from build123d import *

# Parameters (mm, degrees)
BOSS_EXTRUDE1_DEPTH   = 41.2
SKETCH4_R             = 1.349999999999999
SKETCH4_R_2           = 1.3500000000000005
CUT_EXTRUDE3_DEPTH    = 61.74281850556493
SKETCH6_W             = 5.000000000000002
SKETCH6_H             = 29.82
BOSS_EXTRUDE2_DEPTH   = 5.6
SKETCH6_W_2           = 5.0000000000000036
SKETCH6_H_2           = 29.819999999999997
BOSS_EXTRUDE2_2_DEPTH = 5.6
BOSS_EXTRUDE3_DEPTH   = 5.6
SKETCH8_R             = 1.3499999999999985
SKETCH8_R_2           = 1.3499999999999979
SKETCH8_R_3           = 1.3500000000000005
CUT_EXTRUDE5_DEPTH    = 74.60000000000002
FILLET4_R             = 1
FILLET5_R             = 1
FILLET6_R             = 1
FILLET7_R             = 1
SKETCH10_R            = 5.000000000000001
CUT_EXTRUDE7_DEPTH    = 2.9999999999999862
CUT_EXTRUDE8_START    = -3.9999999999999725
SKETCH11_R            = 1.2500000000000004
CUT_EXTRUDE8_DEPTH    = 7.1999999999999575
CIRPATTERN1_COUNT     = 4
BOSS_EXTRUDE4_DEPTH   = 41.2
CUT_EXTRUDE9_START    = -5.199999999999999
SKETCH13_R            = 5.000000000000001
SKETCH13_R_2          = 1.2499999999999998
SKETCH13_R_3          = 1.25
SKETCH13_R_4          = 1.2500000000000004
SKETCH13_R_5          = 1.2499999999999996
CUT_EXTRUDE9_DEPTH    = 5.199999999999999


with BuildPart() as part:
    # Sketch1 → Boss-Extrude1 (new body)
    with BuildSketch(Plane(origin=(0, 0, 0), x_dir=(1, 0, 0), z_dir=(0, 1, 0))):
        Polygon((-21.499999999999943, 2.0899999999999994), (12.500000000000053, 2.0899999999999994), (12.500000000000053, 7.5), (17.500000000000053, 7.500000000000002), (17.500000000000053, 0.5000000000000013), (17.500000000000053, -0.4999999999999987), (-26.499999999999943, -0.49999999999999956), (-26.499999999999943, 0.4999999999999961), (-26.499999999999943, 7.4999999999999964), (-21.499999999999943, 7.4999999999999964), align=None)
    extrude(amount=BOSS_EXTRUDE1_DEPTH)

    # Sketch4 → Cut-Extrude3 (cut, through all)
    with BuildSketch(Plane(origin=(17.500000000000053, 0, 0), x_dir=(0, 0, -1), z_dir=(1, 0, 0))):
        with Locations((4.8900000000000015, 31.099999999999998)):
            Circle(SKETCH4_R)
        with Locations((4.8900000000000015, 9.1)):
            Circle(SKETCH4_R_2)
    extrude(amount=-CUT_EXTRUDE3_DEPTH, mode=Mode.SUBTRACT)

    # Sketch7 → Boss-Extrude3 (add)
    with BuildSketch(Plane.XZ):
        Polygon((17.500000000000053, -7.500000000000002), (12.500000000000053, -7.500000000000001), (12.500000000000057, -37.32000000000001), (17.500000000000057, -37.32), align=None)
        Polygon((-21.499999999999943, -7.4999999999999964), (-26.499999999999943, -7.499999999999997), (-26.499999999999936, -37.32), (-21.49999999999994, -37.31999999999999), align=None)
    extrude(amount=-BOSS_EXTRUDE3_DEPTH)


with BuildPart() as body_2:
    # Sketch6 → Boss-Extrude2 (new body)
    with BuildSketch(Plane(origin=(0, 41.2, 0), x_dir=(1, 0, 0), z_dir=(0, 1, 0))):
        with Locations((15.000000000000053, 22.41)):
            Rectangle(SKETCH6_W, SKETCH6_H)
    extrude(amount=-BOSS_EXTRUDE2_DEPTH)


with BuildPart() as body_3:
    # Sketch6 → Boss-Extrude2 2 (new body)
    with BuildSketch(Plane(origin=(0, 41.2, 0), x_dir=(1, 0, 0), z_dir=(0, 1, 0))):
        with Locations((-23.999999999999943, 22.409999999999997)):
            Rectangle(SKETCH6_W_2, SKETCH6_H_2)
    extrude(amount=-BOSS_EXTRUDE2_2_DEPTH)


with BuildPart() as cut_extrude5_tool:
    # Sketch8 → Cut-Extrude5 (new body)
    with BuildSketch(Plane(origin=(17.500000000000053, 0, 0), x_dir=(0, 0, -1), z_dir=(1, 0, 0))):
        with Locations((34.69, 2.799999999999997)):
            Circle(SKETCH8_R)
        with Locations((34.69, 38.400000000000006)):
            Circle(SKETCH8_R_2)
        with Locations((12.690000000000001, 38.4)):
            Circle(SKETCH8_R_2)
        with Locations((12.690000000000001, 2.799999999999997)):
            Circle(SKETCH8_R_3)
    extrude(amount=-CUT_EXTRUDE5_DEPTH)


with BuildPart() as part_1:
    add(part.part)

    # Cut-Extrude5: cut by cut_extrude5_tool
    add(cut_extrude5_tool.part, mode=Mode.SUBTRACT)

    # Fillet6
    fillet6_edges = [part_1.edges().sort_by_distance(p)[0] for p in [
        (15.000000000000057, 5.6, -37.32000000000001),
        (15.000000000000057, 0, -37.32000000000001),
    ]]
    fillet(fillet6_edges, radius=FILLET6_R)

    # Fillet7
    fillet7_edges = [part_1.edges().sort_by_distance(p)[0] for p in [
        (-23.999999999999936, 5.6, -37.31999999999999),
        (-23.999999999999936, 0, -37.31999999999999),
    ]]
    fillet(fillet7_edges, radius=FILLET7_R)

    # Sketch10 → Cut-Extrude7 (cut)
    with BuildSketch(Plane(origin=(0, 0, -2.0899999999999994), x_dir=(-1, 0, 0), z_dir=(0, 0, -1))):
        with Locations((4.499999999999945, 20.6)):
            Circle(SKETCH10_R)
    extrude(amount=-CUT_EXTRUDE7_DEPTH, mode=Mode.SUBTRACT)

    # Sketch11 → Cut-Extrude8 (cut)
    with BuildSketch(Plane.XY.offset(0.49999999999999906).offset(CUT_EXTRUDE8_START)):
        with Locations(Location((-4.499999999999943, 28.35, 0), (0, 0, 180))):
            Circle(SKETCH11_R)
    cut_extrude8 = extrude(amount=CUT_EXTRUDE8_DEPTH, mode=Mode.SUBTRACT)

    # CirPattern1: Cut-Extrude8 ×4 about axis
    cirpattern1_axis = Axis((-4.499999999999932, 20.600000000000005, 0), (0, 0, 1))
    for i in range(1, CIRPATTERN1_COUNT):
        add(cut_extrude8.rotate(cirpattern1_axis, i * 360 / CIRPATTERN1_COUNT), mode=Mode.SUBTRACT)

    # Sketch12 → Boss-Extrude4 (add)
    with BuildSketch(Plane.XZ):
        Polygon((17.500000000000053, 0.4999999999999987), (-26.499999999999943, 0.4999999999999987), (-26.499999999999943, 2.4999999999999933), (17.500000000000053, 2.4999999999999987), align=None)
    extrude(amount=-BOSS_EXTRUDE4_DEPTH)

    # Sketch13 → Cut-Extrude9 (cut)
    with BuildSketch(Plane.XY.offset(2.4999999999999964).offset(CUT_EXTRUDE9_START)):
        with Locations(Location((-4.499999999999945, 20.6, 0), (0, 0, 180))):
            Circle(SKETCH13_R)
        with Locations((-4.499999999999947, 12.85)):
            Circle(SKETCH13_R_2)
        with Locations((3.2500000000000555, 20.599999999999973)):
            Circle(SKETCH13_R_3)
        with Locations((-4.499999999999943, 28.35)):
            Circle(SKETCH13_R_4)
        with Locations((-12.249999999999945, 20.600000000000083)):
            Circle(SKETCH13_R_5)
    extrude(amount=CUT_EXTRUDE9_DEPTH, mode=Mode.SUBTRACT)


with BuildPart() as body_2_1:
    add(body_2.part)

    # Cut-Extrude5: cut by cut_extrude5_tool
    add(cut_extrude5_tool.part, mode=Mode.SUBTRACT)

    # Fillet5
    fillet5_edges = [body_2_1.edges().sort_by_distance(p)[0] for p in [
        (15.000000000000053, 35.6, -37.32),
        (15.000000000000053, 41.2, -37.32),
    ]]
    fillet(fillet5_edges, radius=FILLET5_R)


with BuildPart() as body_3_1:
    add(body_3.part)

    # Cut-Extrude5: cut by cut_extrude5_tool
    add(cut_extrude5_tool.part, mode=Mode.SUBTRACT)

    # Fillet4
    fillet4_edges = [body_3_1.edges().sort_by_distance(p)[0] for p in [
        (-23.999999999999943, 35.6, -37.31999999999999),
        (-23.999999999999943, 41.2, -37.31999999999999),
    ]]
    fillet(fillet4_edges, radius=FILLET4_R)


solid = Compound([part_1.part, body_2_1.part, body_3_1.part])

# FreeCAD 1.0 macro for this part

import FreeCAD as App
import Part
import Sketcher
from FreeCAD import Vector


def edges_at(feature, points):
    """Names of the edges that pass closest to the given points."""
    edges = feature.Shape.Edges
    near = lambda p: min(range(len(edges)), key=lambda i: edges[i].distToShape(Part.Vertex(*p))[0])
    return sorted({f"Edge{near(p) + 1}" for p in points})

doc = App.newDocument("Part")
params = doc.addObject("Spreadsheet::Sheet", "Params")
for row, (alias, value) in enumerate([
    ("sketch1_width", "34 mm"),
    ("sketch1_width2", "5 mm"),
    ("sketch1_height", "8 mm"),
    ("sketch1_height2", "5.41 mm"),
    ("pad1_length", "41.2 mm"),
    ("sketch2_diameter", "2.7 mm"),
    ("sketch3_width", "5 mm"),
    ("sketch3_height", "29.82 mm"),
    ("pad2_length", "5.6 mm"),
    ("sketch4_width", "5 mm"),
    ("sketch4_height", "29.82 mm"),
    ("pad3_length", "5.6 mm"),
    ("sketch5_width", "5 mm"),
    ("sketch5_height", "29.82 mm"),
    ("pad4_length", "5.6 mm"),
    ("sketch6_diameter", "2.7 mm"),
    ("pad5_length", "74.6 mm"),
    ("fillet_radius", "1 mm"),
    ("fillet2_radius", "1 mm"),
    ("sketch7_diameter", "10 mm"),
    ("pocket2_length", "3 mm"),
    ("sketch8_diameter", "2.5 mm"),
    ("pocket3_length", "7.2 mm"),
    ("sketch9_width", "44 mm"),
    ("sketch9_height", "2 mm"),
    ("pad6_length", "41.2 mm"),
    ("sketch10_diameter", "10 mm"),
    ("sketch10_diameter2", "2.5 mm"),
    ("pocket4_length", "5.2 mm"),
    ("fillet3_radius", "1 mm"),
    ("fillet4_radius", "1 mm"),
], start=1):
    params.set(f"A{row}", alias)
    params.set(f"B{row}", "=" + value)
    params.setAlias(f"B{row}", alias)

body = doc.addObject("PartDesign::Body", "Body")

# Sketch on XZ plane
sketch1 = body.newObject("Sketcher::SketchObject", "Sketch")
sketch1.AttachmentSupport = (doc.getObject("XZ_Plane"), [""])
sketch1.MapMode = "FlatFace"
sketch1.addGeometry([
    Part.LineSegment(Vector(12, -2, 0), Vector(-22, -2, 0)),  # 0
    Part.LineSegment(Vector(-22, -2, 0), Vector(-22, -8, 0)),  # 1
    Part.LineSegment(Vector(-22, -8, 0), Vector(-26, -8, 0)),  # 2
    Part.LineSegment(Vector(-26, -8, 0), Vector(-26, 0, 0)),  # 3
    Part.LineSegment(Vector(-26, 0, 0), Vector(18, 0, 0)),  # 4
    Part.LineSegment(Vector(18, 0, 0), Vector(18, -8, 0)),  # 5
    Part.LineSegment(Vector(18, -8, 0), Vector(12, -8, 0)),  # 6
    Part.LineSegment(Vector(12, -8, 0), Vector(12, -2, 0)),  # 7
], False)
sketch1.addConstraint([
    Sketcher.Constraint("Coincident", 0, 2, 1, 1),
    Sketcher.Constraint("Coincident", 1, 2, 2, 1),
    Sketcher.Constraint("Coincident", 2, 2, 3, 1),
    Sketcher.Constraint("Coincident", 3, 2, 4, 1),
    Sketcher.Constraint("Coincident", 4, 2, 5, 1),
    Sketcher.Constraint("Coincident", 5, 2, 6, 1),
    Sketcher.Constraint("Coincident", 6, 2, 7, 1),
    Sketcher.Constraint("Coincident", 7, 2, 0, 1),
    Sketcher.Constraint("Horizontal", 0),
    Sketcher.Constraint("Vertical", 1),
    Sketcher.Constraint("Horizontal", 2),
    Sketcher.Constraint("Vertical", 3),
    Sketcher.Constraint("Horizontal", 4),
    Sketcher.Constraint("Vertical", 5),
    Sketcher.Constraint("Horizontal", 6),
    Sketcher.Constraint("Vertical", 7),
    Sketcher.Constraint("Horizontal", 2, 2, 5, 2),
    Sketcher.Constraint("Equal", 2, 6),
    Sketcher.Constraint("DistanceX", 0, 2, 0, 1, 34.0),
    Sketcher.Constraint("DistanceX", 2, 2, 2, 1, 5.0),
    Sketcher.Constraint("DistanceY", 3, 1, 3, 2, 8.0),
    Sketcher.Constraint("DistanceY", 1, 2, 1, 1, 5.41),
    Sketcher.Constraint("DistanceX", 0, 2, -1, 1, 21.5),
    Sketcher.Constraint("DistanceY", 1, 2, -1, 1, 7.5),
])
sketch1.setExpression("Constraints[18]", "Params.sketch1_width")
sketch1.setExpression("Constraints[19]", "Params.sketch1_width2")
sketch1.setExpression("Constraints[20]", "Params.sketch1_height")
sketch1.setExpression("Constraints[21]", "Params.sketch1_height2")
pad1 = body.newObject("PartDesign::Pad", "Pad")
pad1.Profile = sketch1
pad1.setExpression("Length", "Params.pad1_length")
pad1.Reversed = True

# Sketch on YZ plane
sketch2 = body.newObject("Sketcher::SketchObject", "Sketch001")
sketch2.AttachmentSupport = (doc.getObject("YZ_Plane"), [""])
sketch2.MapMode = "FlatFace"
sketch2.AttachmentOffset = App.Placement(Vector(0, 0, 17.5), App.Rotation())
sketch2.addGeometry([
    Part.Circle(Vector(31.1, -4.9, 0), Vector(0, 0, 1), 1.4),
    Part.Circle(Vector(9.1, -4.9, 0), Vector(0, 0, 1), 1.4),
], False)
sketch2.addConstraint([
    Sketcher.Constraint("Equal", 0, 1),
    Sketcher.Constraint("Horizontal", 0, 3, 1, 3),
    Sketcher.Constraint("Diameter", 0, 2.7),
    Sketcher.Constraint("DistanceX", 1, 3, 0, 3, 22.0),
    Sketcher.Constraint("DistanceX", -1, 1, 0, 3, 31.1),
    Sketcher.Constraint("DistanceY", 0, 3, -1, 1, 4.89),
])
sketch2.setExpression("Constraints[2]", "Params.sketch2_diameter")
pocket1 = body.newObject("PartDesign::Pocket", "Pocket")
pocket1.Profile = sketch2
pocket1.Type = "ThroughAll"

# Sketch on XZ plane
sketch3 = body.newObject("Sketcher::SketchObject", "Sketch002")
sketch3.AttachmentSupport = (doc.getObject("XZ_Plane"), [""])
sketch3.MapMode = "FlatFace"
sketch3.addGeometry([
    Part.LineSegment(Vector(18, -8, 0), Vector(12, -8, 0)),  # 0
    Part.LineSegment(Vector(12, -8, 0), Vector(12, -37, 0)),  # 1
    Part.LineSegment(Vector(12, -37, 0), Vector(18, -37, 0)),  # 2
    Part.LineSegment(Vector(18, -37, 0), Vector(18, -8, 0)),  # 3
    Part.LineSegment(Vector(-22, -8, 0), Vector(-26, -8, 0)),  # 4
    Part.LineSegment(Vector(-26, -8, 0), Vector(-26, -37, 0)),  # 5
    Part.LineSegment(Vector(-26, -37, 0), Vector(-22, -37, 0)),  # 6
    Part.LineSegment(Vector(-22, -37, 0), Vector(-22, -8, 0)),  # 7
], False)
sketch3.addConstraint([
    Sketcher.Constraint("Coincident", 0, 2, 1, 1),
    Sketcher.Constraint("Coincident", 1, 2, 2, 1),
    Sketcher.Constraint("Coincident", 2, 2, 3, 1),
    Sketcher.Constraint("Coincident", 3, 2, 0, 1),
    Sketcher.Constraint("Coincident", 4, 2, 5, 1),
    Sketcher.Constraint("Coincident", 5, 2, 6, 1),
    Sketcher.Constraint("Coincident", 6, 2, 7, 1),
    Sketcher.Constraint("Coincident", 7, 2, 4, 1),
    Sketcher.Constraint("Horizontal", 0),
    Sketcher.Constraint("Vertical", 1),
    Sketcher.Constraint("Horizontal", 2),
    Sketcher.Constraint("Vertical", 3),
    Sketcher.Constraint("Horizontal", 4),
    Sketcher.Constraint("Vertical", 5),
    Sketcher.Constraint("Horizontal", 6),
    Sketcher.Constraint("Vertical", 7),
    Sketcher.Constraint("Horizontal", 3, 2, 4, 2),
    Sketcher.Constraint("Horizontal", 2, 2, 5, 2),
    Sketcher.Constraint("Equal", 2, 4),
    Sketcher.Constraint("DistanceX", 0, 2, 0, 1, 5.0),
    Sketcher.Constraint("DistanceX", 4, 2, 0, 2, 39.0),
    Sketcher.Constraint("DistanceY", 1, 2, 1, 1, 29.82),
    Sketcher.Constraint("DistanceX", -1, 1, 0, 2, 12.5),
    Sketcher.Constraint("DistanceY", 0, 2, -1, 1, 7.5),
])
sketch3.setExpression("Constraints[19]", "Params.sketch3_width")
sketch3.setExpression("Constraints[21]", "Params.sketch3_height")
pad2 = body.newObject("PartDesign::Pad", "Pad001")
pad2.Profile = sketch3
pad2.setExpression("Length", "Params.pad2_length")
pad2.Reversed = True
body2 = doc.addObject("PartDesign::Body", "Body001")

# Sketch on XZ plane
sketch4 = body2.newObject("Sketcher::SketchObject", "Sketch003")
sketch4.AttachmentSupport = (doc.getObject("XZ_Plane001"), [""])
sketch4.MapMode = "FlatFace"
sketch4.AttachmentOffset = App.Placement(Vector(0, 0, -41.2), App.Rotation())
sketch4.addGeometry([
    Part.LineSegment(Vector(12, -37, 0), Vector(12, -8, 0)),
    Part.LineSegment(Vector(12, -8, 0), Vector(18, -8, 0)),
    Part.LineSegment(Vector(18, -8, 0), Vector(18, -37, 0)),
    Part.LineSegment(Vector(18, -37, 0), Vector(12, -37, 0)),
], False)
sketch4.addConstraint([
    Sketcher.Constraint("Coincident", 0, 2, 1, 1),
    Sketcher.Constraint("Coincident", 1, 2, 2, 1),
    Sketcher.Constraint("Coincident", 2, 2, 3, 1),
    Sketcher.Constraint("Coincident", 3, 2, 0, 1),
    Sketcher.Constraint("Vertical", 0),
    Sketcher.Constraint("Horizontal", 1),
    Sketcher.Constraint("Vertical", 2),
    Sketcher.Constraint("Horizontal", 3),
    Sketcher.Constraint("DistanceX", 1, 1, 1, 2, 5.0),
    Sketcher.Constraint("DistanceY", 0, 1, 0, 2, 29.82),
    Sketcher.Constraint("DistanceX", -1, 1, 0, 2, 12.5),
    Sketcher.Constraint("DistanceY", 0, 2, -1, 1, 7.5),
])
sketch4.setExpression("Constraints[8]", "Params.sketch4_width")
sketch4.setExpression("Constraints[9]", "Params.sketch4_height")
pad3 = body2.newObject("PartDesign::Pad", "Pad002")
pad3.Profile = sketch4
pad3.setExpression("Length", "Params.pad3_length")
body3 = doc.addObject("PartDesign::Body", "Body002")

# Sketch on XZ plane
sketch5 = body3.newObject("Sketcher::SketchObject", "Sketch004")
sketch5.AttachmentSupport = (doc.getObject("XZ_Plane002"), [""])
sketch5.MapMode = "FlatFace"
sketch5.AttachmentOffset = App.Placement(Vector(0, 0, -41.2), App.Rotation())
sketch5.addGeometry([
    Part.LineSegment(Vector(-26, -37, 0), Vector(-26, -8, 0)),
    Part.LineSegment(Vector(-26, -8, 0), Vector(-22, -8, 0)),
    Part.LineSegment(Vector(-22, -8, 0), Vector(-22, -37, 0)),
    Part.LineSegment(Vector(-22, -37, 0), Vector(-26, -37, 0)),
], False)
sketch5.addConstraint([
    Sketcher.Constraint("Coincident", 0, 2, 1, 1),
    Sketcher.Constraint("Coincident", 1, 2, 2, 1),
    Sketcher.Constraint("Coincident", 2, 2, 3, 1),
    Sketcher.Constraint("Coincident", 3, 2, 0, 1),
    Sketcher.Constraint("Vertical", 0),
    Sketcher.Constraint("Horizontal", 1),
    Sketcher.Constraint("Vertical", 2),
    Sketcher.Constraint("Horizontal", 3),
    Sketcher.Constraint("DistanceX", 1, 1, 1, 2, 5.0),
    Sketcher.Constraint("DistanceY", 0, 1, 0, 2, 29.82),
    Sketcher.Constraint("DistanceX", 0, 2, -1, 1, 26.5),
    Sketcher.Constraint("DistanceY", 0, 2, -1, 1, 7.5),
])
sketch5.setExpression("Constraints[8]", "Params.sketch5_width")
sketch5.setExpression("Constraints[9]", "Params.sketch5_height")
pad4 = body3.newObject("PartDesign::Pad", "Pad003")
pad4.Profile = sketch5
pad4.setExpression("Length", "Params.pad4_length")
body4 = doc.addObject("PartDesign::Body", "Body003")
body4.AllowCompound = True

# Sketch on YZ plane
sketch6 = body4.newObject("Sketcher::SketchObject", "Sketch005")
sketch6.AttachmentSupport = (doc.getObject("YZ_Plane003"), [""])
sketch6.MapMode = "FlatFace"
sketch6.AttachmentOffset = App.Placement(Vector(0, 0, 17.5), App.Rotation())
sketch6.addGeometry([
    Part.Circle(Vector(2.8, -34.7, 0), Vector(0, 0, 1), 1.4),
    Part.Circle(Vector(38.4, -34.7, 0), Vector(0, 0, 1), 1.4),
    Part.Circle(Vector(38.4, -12.7, 0), Vector(0, 0, 1), 1.4),
    Part.Circle(Vector(2.8, -12.7, 0), Vector(0, 0, 1), 1.4),
], False)
sketch6.addConstraint([
    Sketcher.Constraint("Equal", 0, 1),
    Sketcher.Constraint("Equal", 1, 2),
    Sketcher.Constraint("Equal", 2, 3),
    Sketcher.Constraint("Horizontal", 0, 3, 1, 3),
    Sketcher.Constraint("Horizontal", 2, 3, 3, 3),
    Sketcher.Constraint("Vertical", 1, 3, 2, 3),
    Sketcher.Constraint("Vertical", 0, 3, 3, 3),
    Sketcher.Constraint("Diameter", 0, 2.7),
    Sketcher.Constraint("DistanceY", 1, 3, 2, 3, 22.0),
    Sketcher.Constraint("DistanceX", -1, 1, 0, 3, 2.8),
    Sketcher.Constraint("DistanceX", -1, 1, 1, 3, 38.4),
    Sketcher.Constraint("DistanceY", 0, 3, -1, 1, 34.69),
])
sketch6.setExpression("Constraints[7]", "Params.sketch6_diameter")
pad5 = body4.newObject("PartDesign::Pad", "Pad004")
pad5.Profile = sketch6
pad5.setExpression("Length", "Params.pad5_length")
pad5.Reversed = True
doc.recompute()

body5 = doc.addObject("PartDesign::Body", "Body004")
body5.BaseFeature = body4
boolean = body.newObject("PartDesign::Boolean", "Boolean")
boolean.Type = "Cut"
boolean.addObjects([body5])
doc.recompute()

fillet = body.newObject("PartDesign::Fillet", "Fillet")
fillet.Base = (boolean, edges_at(boolean, [(15, 5.6, -37.32), (15, 0, -37.32)]))
fillet.setExpression("Radius", "Params.fillet_radius")
doc.recompute()

fillet2 = body.newObject("PartDesign::Fillet", "Fillet001")
fillet2.Base = (fillet, edges_at(fillet, [(-24, 5.6, -37.32), (-24, 0, -37.32)]))
fillet2.setExpression("Radius", "Params.fillet2_radius")

# Sketch on XY plane
sketch7 = body.newObject("Sketcher::SketchObject", "Sketch006")
sketch7.AttachmentSupport = (doc.getObject("XY_Plane"), [""])
sketch7.MapMode = "FlatFace"
sketch7.AttachmentOffset = App.Placement(Vector(0, 0, -2.09), App.Rotation())
sketch7.addGeometry(Part.Circle(Vector(-4, 21, 0), Vector(0, 0, 1), 5), False)
sketch7.addConstraint([
    Sketcher.Constraint("Diameter", 0, 10.0),
    Sketcher.Constraint("DistanceX", 0, 3, -1, 1, 4.5),
    Sketcher.Constraint("DistanceY", -1, 1, 0, 3, 20.6),
])
sketch7.setExpression("Constraints[0]", "Params.sketch7_diameter")
pocket2 = body.newObject("PartDesign::Pocket", "Pocket001")
pocket2.Profile = sketch7
pocket2.setExpression("Length", "Params.pocket2_length")
pocket2.Reversed = True

# Sketch on XY plane
sketch8 = body.newObject("Sketcher::SketchObject", "Sketch007")
sketch8.AttachmentSupport = (doc.getObject("XY_Plane"), [""])
sketch8.MapMode = "FlatFace"
sketch8.AttachmentOffset = App.Placement(Vector(0, 0, -3.5), App.Rotation())
sketch8.addGeometry(Part.Circle(Vector(-4.5, 28.4, 0), Vector(0, 0, 1), 1.2), False)
sketch8.addConstraint([
    Sketcher.Constraint("Diameter", 0, 2.5),
    Sketcher.Constraint("DistanceX", 0, 3, -1, 1, 4.5),
    Sketcher.Constraint("DistanceY", -1, 1, 0, 3, 28.35),
])
sketch8.setExpression("Constraints[0]", "Params.sketch8_diameter")
pocket3 = body.newObject("PartDesign::Pocket", "Pocket002")
pocket3.Profile = sketch8
pocket3.setExpression("Length", "Params.pocket3_length")
pocket3.Reversed = True
doc.recompute()

datumline = body.newObject("PartDesign::Line", "DatumLine")
datumline.Placement = App.Placement(Vector(-4.5, 20.6, 0), App.Rotation(Vector(0, 0, 1), Vector(0, 0, 1)))
polarpattern = body.newObject("PartDesign::PolarPattern", "PolarPattern")
polarpattern.Originals = [pocket3]
polarpattern.Axis = (datumline, [""])
polarpattern.Angle = 360
polarpattern.Occurrences = 4
body.Tip = polarpattern

# Sketch on XZ plane
sketch9 = body.newObject("Sketcher::SketchObject", "Sketch008")
sketch9.AttachmentSupport = (doc.getObject("XZ_Plane"), [""])
sketch9.MapMode = "FlatFace"
sketch9.addGeometry([
    Part.LineSegment(Vector(-26.5, 0.5, 0), Vector(17.5, 0.5, 0)),
    Part.LineSegment(Vector(17.5, 0.5, 0), Vector(17.5, 2.5, 0)),
    Part.LineSegment(Vector(17.5, 2.5, 0), Vector(-26.5, 2.5, 0)),
    Part.LineSegment(Vector(-26.5, 2.5, 0), Vector(-26.5, 0.5, 0)),
], False)
sketch9.addConstraint([
    Sketcher.Constraint("Coincident", 0, 2, 1, 1),
    Sketcher.Constraint("Coincident", 1, 2, 2, 1),
    Sketcher.Constraint("Coincident", 2, 2, 3, 1),
    Sketcher.Constraint("Coincident", 3, 2, 0, 1),
    Sketcher.Constraint("Horizontal", 0),
    Sketcher.Constraint("Vertical", 1),
    Sketcher.Constraint("Horizontal", 2),
    Sketcher.Constraint("Vertical", 3),
    Sketcher.Constraint("DistanceX", 0, 1, 0, 2, 44.0),
    Sketcher.Constraint("DistanceY", 1, 1, 1, 2, 2.0),
    Sketcher.Constraint("DistanceX", -1, 1, 0, 2, 17.5),
    Sketcher.Constraint("DistanceY", -1, 1, 0, 2, 0.5),
])
sketch9.setExpression("Constraints[8]", "Params.sketch9_width")
sketch9.setExpression("Constraints[9]", "Params.sketch9_height")
pad6 = body.newObject("PartDesign::Pad", "Pad005")
pad6.Profile = sketch9
pad6.setExpression("Length", "Params.pad6_length")
pad6.Reversed = True

# Sketch on XY plane
sketch10 = body.newObject("Sketcher::SketchObject", "Sketch009")
sketch10.AttachmentSupport = (doc.getObject("XY_Plane"), [""])
sketch10.MapMode = "FlatFace"
sketch10.AttachmentOffset = App.Placement(Vector(0, 0, -2.7), App.Rotation())
sketch10.addGeometry([
    Part.Circle(Vector(-4.5, 20.6, 0), Vector(0, 0, 1), 5),  # 0
    Part.Circle(Vector(-4.5, 12.8, 0), Vector(0, 0, 1), 1.2),  # 1
    Part.Circle(Vector(3.2, 20.6, 0), Vector(0, 0, 1), 1.2),  # 2
    Part.Circle(Vector(-4.5, 28.4, 0), Vector(0, 0, 1), 1.2),  # 3
    Part.Circle(Vector(-12.2, 20.6, 0), Vector(0, 0, 1), 1.2),  # 4
], False)
sketch10.addConstraint([
    Sketcher.Constraint("Equal", 1, 2),
    Sketcher.Constraint("Equal", 2, 3),
    Sketcher.Constraint("Equal", 3, 4),
    Sketcher.Constraint("Horizontal", 0, 3, 2, 3),
    Sketcher.Constraint("Horizontal", 2, 3, 4, 3),
    Sketcher.Constraint("Vertical", 0, 3, 1, 3),
    Sketcher.Constraint("Vertical", 1, 3, 3, 3),
    Sketcher.Constraint("Diameter", 0, 10.0),
    Sketcher.Constraint("Diameter", 1, 2.5),
    Sketcher.Constraint("DistanceX", 0, 3, -1, 1, 4.5),
    Sketcher.Constraint("DistanceY", -1, 1, 0, 3, 20.6),
    Sketcher.Constraint("DistanceY", 1, 3, 3, 3, 15.5),
    Sketcher.Constraint("DistanceX", 4, 3, 2, 3, 15.5),
    Sketcher.Constraint("DistanceY", -1, 1, 1, 3, 12.85),
    Sketcher.Constraint("DistanceX", -1, 1, 2, 3, 3.25),
])
sketch10.setExpression("Constraints[7]", "Params.sketch10_diameter")
sketch10.setExpression("Constraints[8]", "Params.sketch10_diameter2")
pocket4 = body.newObject("PartDesign::Pocket", "Pocket003")
pocket4.Profile = sketch10
pocket4.setExpression("Length", "Params.pocket4_length")
pocket4.Reversed = True
doc.recompute()

body6 = doc.addObject("PartDesign::Body", "Body005")
body6.BaseFeature = body4
boolean2 = body2.newObject("PartDesign::Boolean", "Boolean001")
boolean2.Type = "Cut"
boolean2.addObjects([body6])
doc.recompute()

fillet3 = body2.newObject("PartDesign::Fillet", "Fillet002")
fillet3.Base = (boolean2, edges_at(boolean2, [(15, 35.6, -37.32), (15, 41.2, -37.32)]))
fillet3.setExpression("Radius", "Params.fillet3_radius")
doc.recompute()

boolean3 = body3.newObject("PartDesign::Boolean", "Boolean002")
boolean3.Type = "Cut"
boolean3.addObjects([body4])
doc.recompute()

fillet4 = body3.newObject("PartDesign::Fillet", "Fillet003")
fillet4.Base = (boolean3, edges_at(boolean3, [(-24, 35.6, -37.32), (-24, 41.2, -37.32)]))
fillet4.setExpression("Radius", "Params.fillet4_radius")

doc.recompute()
